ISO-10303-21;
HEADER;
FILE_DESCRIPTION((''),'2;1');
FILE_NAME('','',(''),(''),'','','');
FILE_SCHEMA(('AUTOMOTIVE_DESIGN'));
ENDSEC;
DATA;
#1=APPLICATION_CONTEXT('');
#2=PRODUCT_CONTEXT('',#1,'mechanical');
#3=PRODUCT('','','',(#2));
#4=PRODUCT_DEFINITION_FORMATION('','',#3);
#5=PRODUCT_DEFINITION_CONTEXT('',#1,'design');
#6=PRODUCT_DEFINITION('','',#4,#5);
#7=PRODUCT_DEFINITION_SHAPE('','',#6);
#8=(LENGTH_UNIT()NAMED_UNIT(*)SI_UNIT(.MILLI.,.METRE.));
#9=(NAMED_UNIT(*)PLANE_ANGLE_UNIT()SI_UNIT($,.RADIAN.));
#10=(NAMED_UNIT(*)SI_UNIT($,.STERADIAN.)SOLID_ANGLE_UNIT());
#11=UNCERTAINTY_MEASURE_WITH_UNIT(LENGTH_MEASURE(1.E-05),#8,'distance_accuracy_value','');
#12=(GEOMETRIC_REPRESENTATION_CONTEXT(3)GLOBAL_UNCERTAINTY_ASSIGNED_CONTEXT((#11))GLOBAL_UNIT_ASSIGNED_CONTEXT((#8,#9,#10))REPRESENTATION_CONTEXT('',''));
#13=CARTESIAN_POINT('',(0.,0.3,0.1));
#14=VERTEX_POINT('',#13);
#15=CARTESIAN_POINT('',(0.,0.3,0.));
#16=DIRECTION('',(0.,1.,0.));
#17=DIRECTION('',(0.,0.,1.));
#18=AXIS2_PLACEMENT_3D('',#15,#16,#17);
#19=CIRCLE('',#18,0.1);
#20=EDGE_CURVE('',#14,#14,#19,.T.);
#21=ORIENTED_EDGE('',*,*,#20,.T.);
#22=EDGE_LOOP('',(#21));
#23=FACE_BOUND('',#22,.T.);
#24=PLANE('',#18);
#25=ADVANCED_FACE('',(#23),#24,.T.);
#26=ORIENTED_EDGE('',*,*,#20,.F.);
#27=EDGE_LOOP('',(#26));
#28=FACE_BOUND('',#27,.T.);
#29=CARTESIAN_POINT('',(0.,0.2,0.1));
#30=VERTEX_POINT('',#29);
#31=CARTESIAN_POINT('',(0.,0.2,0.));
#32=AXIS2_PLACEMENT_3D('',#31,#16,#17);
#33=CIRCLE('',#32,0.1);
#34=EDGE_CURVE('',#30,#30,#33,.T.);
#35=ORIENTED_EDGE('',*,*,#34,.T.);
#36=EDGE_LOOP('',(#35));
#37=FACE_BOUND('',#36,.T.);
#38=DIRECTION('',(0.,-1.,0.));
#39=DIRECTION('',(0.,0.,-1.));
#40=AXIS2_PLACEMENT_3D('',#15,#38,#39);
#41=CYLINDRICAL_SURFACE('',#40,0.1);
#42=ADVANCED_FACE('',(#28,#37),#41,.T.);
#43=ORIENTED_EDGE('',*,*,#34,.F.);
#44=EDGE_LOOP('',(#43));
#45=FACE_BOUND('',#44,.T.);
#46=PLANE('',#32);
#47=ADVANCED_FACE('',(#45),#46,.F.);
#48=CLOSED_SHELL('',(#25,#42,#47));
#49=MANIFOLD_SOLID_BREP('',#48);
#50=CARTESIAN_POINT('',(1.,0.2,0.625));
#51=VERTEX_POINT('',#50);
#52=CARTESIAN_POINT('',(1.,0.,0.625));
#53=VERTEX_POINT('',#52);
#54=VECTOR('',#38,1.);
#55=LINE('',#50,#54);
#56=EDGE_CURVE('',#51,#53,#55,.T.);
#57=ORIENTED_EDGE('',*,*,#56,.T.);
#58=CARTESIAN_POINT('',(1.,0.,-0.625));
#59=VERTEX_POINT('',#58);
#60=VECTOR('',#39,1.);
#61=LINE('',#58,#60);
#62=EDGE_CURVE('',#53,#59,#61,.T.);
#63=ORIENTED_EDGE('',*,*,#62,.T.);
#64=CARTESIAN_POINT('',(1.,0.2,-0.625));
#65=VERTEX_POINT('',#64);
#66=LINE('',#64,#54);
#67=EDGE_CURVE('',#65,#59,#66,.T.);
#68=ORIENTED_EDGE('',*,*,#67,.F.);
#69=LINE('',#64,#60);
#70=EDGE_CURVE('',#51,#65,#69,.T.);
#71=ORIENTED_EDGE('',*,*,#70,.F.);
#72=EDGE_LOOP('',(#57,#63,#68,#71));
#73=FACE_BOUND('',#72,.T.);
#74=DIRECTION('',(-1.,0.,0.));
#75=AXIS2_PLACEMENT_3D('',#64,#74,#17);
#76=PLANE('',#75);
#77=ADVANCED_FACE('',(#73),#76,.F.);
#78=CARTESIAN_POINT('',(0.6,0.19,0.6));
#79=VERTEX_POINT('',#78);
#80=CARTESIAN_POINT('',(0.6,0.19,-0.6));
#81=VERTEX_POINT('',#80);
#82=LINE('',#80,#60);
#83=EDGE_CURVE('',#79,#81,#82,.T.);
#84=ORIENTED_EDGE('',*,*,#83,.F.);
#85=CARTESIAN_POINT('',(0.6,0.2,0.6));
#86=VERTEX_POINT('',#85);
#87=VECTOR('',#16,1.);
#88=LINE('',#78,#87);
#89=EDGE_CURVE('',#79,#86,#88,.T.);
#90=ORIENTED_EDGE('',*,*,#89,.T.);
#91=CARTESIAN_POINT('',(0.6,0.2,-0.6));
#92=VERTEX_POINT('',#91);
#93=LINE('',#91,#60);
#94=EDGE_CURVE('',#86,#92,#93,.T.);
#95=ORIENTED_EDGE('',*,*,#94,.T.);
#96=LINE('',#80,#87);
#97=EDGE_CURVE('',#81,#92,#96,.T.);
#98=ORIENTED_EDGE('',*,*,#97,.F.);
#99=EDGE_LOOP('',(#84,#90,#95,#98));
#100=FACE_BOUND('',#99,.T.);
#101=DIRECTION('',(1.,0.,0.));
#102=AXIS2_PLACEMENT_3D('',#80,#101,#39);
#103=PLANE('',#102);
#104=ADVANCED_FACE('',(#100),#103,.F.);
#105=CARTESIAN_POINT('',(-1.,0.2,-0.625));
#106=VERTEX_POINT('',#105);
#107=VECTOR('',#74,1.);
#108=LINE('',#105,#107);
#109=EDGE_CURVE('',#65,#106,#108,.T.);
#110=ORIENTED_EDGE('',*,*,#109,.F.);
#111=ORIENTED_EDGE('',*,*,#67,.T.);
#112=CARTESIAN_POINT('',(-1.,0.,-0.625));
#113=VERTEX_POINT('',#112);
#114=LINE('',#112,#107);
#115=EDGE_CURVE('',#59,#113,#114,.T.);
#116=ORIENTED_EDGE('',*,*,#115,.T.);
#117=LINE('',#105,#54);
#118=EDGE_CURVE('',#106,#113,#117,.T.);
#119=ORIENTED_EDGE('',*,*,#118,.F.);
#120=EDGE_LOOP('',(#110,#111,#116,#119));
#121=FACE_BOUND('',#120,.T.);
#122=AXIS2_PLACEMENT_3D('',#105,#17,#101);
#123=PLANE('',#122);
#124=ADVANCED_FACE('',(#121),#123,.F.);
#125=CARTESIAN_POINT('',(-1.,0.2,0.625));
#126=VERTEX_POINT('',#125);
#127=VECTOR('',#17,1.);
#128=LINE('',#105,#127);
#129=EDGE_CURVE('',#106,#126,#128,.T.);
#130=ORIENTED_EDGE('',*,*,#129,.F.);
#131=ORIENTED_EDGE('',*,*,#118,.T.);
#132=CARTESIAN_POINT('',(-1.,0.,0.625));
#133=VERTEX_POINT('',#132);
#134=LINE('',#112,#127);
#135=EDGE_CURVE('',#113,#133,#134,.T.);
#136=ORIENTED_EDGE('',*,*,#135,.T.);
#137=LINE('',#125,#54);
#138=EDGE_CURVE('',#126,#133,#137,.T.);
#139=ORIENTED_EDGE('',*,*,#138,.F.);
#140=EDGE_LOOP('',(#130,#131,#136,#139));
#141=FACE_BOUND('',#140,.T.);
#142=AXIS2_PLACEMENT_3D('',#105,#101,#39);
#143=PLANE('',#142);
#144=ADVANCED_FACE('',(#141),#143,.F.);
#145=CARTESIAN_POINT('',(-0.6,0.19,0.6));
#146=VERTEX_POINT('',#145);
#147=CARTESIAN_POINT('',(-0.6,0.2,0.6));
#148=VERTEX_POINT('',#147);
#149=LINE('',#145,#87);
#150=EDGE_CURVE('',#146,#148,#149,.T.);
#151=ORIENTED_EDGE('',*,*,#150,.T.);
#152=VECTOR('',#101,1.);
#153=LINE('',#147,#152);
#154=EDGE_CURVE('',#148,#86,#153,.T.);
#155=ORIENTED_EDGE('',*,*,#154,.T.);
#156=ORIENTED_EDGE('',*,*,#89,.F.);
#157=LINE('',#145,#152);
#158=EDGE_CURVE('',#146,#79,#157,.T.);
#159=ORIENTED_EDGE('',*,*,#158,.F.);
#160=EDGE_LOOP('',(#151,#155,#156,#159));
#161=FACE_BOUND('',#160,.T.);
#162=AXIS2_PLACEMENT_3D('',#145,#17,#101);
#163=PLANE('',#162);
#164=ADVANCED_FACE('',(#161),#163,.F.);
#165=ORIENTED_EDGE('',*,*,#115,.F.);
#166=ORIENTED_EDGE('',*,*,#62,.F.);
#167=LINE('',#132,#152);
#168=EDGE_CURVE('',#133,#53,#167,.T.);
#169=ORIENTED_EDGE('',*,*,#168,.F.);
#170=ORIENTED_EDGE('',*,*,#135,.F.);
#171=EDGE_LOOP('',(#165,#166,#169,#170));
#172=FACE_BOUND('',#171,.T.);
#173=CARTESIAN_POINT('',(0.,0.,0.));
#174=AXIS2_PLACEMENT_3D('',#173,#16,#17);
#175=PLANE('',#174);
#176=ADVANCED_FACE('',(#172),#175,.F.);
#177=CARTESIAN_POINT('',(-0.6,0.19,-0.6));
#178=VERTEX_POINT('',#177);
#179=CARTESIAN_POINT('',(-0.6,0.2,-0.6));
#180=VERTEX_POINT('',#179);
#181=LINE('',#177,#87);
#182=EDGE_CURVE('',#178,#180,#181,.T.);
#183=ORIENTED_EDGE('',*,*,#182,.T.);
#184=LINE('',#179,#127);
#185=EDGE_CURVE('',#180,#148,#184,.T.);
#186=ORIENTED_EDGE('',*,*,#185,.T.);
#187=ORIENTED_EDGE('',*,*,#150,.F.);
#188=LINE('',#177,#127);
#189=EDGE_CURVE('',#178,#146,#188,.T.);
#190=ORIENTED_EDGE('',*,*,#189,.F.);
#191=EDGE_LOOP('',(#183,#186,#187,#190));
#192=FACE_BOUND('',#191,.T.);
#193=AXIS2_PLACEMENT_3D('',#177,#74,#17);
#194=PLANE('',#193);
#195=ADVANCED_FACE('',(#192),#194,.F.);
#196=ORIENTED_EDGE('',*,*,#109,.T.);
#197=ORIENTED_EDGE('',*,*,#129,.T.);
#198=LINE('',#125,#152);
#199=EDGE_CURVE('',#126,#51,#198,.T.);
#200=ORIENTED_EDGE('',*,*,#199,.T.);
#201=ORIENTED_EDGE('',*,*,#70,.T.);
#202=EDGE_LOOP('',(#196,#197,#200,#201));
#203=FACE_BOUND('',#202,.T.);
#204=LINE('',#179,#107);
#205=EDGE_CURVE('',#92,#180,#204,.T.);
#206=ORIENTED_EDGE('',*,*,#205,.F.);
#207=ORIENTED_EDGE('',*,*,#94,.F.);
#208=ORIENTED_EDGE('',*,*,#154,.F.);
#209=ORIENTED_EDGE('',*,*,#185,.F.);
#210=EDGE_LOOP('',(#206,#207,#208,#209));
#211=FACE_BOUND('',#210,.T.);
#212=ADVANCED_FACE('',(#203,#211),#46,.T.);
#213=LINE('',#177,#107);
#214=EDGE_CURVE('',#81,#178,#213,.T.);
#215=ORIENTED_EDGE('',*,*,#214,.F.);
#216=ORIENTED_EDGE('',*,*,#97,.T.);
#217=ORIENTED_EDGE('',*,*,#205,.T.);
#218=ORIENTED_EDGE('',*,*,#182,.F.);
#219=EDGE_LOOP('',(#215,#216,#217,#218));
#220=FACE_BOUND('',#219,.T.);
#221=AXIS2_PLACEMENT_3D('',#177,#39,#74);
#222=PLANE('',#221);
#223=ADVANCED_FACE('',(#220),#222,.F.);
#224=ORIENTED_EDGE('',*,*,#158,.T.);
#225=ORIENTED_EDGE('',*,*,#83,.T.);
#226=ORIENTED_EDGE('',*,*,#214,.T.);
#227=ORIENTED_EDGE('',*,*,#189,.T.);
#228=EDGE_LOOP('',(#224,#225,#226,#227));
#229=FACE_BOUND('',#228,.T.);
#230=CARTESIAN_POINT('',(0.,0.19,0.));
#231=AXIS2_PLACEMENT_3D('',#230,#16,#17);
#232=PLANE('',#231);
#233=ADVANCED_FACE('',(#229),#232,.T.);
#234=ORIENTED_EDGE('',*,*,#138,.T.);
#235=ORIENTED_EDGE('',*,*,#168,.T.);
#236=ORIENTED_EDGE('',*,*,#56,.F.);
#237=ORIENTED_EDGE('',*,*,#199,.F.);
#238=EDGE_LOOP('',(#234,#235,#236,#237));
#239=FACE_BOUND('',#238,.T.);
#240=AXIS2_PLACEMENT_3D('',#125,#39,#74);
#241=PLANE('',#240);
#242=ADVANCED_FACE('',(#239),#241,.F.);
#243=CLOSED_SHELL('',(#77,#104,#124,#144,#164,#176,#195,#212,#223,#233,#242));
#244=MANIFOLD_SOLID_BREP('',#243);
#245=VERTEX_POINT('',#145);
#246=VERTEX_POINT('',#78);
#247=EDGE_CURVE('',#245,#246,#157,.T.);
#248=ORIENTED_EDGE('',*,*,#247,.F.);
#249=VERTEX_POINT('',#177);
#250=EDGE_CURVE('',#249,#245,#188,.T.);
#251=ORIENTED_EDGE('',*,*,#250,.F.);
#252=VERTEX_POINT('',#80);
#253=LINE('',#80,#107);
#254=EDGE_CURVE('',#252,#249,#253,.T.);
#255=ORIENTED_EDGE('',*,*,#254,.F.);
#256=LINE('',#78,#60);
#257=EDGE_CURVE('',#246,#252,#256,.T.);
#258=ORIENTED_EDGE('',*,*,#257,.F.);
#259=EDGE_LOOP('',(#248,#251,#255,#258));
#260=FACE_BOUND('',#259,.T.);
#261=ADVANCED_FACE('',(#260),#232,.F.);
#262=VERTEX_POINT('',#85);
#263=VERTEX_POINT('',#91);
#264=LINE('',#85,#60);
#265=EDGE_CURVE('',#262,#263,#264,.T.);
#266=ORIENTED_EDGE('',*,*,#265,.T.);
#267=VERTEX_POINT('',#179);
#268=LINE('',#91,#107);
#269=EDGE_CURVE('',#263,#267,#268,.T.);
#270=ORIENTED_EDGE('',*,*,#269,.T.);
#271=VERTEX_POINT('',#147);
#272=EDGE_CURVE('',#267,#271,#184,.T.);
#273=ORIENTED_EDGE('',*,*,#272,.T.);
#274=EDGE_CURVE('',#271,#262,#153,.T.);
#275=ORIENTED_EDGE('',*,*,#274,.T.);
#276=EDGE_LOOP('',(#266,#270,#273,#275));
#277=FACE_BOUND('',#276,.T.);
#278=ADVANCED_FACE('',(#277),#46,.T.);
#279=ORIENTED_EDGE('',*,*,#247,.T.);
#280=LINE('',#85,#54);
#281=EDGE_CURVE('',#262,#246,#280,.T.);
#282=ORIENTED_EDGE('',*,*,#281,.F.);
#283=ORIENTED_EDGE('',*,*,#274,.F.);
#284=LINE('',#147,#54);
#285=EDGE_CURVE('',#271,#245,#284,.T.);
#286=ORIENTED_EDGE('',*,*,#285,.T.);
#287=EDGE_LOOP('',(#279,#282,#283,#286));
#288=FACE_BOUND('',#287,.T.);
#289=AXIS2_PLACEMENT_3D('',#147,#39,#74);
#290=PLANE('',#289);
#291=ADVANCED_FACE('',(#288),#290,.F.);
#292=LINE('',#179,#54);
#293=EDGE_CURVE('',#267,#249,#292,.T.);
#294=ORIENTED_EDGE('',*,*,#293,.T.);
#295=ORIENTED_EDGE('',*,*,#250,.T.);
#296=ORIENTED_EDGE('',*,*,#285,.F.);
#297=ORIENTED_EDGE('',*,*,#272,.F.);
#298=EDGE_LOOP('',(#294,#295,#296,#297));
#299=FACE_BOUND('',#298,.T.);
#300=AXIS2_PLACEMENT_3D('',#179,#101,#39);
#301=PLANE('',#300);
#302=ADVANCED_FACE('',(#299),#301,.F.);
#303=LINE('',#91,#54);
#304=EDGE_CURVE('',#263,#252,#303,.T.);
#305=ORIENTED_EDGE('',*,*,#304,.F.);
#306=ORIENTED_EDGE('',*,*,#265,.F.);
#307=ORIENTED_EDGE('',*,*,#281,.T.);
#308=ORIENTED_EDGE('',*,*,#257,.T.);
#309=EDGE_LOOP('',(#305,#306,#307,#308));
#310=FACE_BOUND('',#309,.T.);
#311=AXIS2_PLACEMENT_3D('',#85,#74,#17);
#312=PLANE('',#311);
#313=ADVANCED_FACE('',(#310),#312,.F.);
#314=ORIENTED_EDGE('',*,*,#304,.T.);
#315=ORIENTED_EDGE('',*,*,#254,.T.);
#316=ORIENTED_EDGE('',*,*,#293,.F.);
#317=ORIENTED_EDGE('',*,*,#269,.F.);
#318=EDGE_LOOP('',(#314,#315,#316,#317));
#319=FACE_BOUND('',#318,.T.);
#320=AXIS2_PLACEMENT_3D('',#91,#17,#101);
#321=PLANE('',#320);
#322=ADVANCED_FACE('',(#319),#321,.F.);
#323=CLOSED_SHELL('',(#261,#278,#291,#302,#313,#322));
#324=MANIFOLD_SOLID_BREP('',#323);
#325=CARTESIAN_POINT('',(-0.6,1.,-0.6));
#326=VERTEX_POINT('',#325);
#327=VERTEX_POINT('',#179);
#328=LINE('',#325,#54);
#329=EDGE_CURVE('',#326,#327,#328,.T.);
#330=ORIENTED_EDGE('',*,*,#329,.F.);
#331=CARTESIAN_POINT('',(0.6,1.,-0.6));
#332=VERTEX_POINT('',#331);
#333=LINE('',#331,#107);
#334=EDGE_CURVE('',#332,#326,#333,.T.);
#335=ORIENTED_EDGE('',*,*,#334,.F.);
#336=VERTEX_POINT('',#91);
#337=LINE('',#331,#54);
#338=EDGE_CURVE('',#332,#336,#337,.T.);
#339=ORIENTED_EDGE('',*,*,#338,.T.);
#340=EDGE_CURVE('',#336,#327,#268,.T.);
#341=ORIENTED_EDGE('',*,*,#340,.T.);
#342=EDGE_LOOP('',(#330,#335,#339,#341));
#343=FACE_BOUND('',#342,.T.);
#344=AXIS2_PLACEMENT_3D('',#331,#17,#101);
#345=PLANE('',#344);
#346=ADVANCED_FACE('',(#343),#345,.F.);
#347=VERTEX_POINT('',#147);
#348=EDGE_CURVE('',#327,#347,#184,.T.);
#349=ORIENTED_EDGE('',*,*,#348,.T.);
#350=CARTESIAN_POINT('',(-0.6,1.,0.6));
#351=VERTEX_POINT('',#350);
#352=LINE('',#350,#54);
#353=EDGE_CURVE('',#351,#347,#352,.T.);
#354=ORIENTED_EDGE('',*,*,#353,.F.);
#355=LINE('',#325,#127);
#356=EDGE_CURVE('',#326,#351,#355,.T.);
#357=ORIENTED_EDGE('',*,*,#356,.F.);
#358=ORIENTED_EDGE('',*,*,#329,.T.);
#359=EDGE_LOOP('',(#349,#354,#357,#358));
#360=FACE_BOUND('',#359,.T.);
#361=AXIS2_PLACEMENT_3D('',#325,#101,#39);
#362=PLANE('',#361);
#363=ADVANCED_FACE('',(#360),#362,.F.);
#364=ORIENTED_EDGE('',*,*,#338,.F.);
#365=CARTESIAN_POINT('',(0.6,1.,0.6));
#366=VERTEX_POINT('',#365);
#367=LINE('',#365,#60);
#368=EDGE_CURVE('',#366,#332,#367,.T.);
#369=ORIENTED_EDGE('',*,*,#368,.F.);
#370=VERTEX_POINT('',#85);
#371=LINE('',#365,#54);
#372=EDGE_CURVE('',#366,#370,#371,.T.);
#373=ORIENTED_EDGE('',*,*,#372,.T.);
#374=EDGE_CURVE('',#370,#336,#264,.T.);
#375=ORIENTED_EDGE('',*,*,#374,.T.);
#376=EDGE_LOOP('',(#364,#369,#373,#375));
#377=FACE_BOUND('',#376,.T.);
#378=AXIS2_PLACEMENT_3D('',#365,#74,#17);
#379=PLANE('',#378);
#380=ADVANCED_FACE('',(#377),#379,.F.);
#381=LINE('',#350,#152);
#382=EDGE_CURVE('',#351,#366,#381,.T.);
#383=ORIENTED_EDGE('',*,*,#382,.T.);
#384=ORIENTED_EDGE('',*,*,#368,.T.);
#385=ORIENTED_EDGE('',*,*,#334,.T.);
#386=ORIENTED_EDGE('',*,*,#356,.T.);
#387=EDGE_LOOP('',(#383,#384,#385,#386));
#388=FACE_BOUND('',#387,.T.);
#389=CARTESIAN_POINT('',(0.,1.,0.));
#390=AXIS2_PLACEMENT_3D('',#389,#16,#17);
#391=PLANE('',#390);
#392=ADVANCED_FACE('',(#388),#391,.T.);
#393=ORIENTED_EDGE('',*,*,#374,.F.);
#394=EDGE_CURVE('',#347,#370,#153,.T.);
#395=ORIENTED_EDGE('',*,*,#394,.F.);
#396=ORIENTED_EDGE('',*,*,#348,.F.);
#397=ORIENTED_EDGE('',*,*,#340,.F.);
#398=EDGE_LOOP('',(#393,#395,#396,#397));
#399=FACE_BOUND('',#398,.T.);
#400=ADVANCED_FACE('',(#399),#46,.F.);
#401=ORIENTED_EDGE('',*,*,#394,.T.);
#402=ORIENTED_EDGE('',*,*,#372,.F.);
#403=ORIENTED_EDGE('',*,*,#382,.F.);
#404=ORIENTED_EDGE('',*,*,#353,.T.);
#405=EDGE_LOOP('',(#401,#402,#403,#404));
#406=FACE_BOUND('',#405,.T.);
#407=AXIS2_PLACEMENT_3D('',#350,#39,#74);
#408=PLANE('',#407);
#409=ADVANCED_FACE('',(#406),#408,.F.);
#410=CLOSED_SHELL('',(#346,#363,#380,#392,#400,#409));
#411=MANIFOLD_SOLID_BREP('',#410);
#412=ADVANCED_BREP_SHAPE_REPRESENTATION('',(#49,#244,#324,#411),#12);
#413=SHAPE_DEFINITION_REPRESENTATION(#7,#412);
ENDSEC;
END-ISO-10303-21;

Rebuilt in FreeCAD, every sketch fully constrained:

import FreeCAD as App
import Part
import Sketcher
Q = App.Units.Quantity


def add_polygon(sketch, points):
    """Adds a closed chain of lines whose ends are joined by coincident constraints."""
    first, n = sketch.GeometryCount, len(points)
    for a, b in zip(points, points[1:] + points[:1]):
        sketch.addGeometry(Part.LineSegment(App.Vector(*a, 0), App.Vector(*b, 0)), False)
    for i in range(n):
        sketch.addConstraint(Sketcher.Constraint("Coincident", first + i, 2, first + (i + 1) % n, 1))

doc = App.newDocument("Part")
body = doc.addObject("PartDesign::Body", "Body")
body.AllowCompound = True

# Sketch on XZ plane
sketch1 = body.newObject("Sketcher::SketchObject", "Sketch")
sketch1.AttachmentSupport = (doc.getObject("XZ_Plane"), [""])
sketch1.MapMode = "FlatFace"
sketch1.addGeometry(Part.Circle(App.Vector(0, 0, 0), App.Vector(0, 0, 1), 0.1), False)
sketch1.addConstraint([
    Sketcher.Constraint("Coincident", 0, 3, -1, 1),
    Sketcher.Constraint("Diameter", 0, Q("0.2 mm")),
])
pad1 = body.newObject("PartDesign::Pad", "Pad")
pad1.Profile = sketch1
pad1.Length = 0.3
pad1.Reversed = True

# Sketch on XZ plane
sketch2 = body.newObject("Sketcher::SketchObject", "Sketch001")
sketch2.AttachmentSupport = (doc.getObject("XZ_Plane"), [""])
sketch2.MapMode = "FlatFace"
add_polygon(sketch2, [(-1, -0.6), (-1, 0.6), (1, 0.6), (1, -0.6)])  # lines 0-3
sketch2.addConstraint([
    Sketcher.Constraint("Vertical", 0),
    Sketcher.Constraint("Horizontal", 1),
    Sketcher.Constraint("Vertical", 2),
    Sketcher.Constraint("Horizontal", 3),
    Sketcher.Constraint("Symmetric", 0, 2, 2, 2, -1, 1),
    Sketcher.Constraint("DistanceX", 1, 1, 1, 2, Q("2 mm")),
    Sketcher.Constraint("DistanceY", 0, 1, 0, 2, Q("1.25 mm")),
])
pad2 = body.newObject("PartDesign::Pad", "Pad001")
pad2.Profile = sketch2
pad2.Length = 0.2
pad2.Reversed = True

# Sketch on XZ plane
sketch3 = body.newObject("Sketcher::SketchObject", "Sketch002")
sketch3.AttachmentSupport = (doc.getObject("XZ_Plane"), [""])
sketch3.MapMode = "FlatFace"
sketch3.AttachmentOffset = App.Placement(App.Vector(0, 0, -0.2), App.Rotation())
add_polygon(sketch3, [(-0.6, -0.6), (-0.6, 0.6), (0.6, 0.6), (0.6, -0.6)])  # lines 0-3
sketch3.addConstraint([
    Sketcher.Constraint("Vertical", 0),
    Sketcher.Constraint("Horizontal", 1),
    Sketcher.Constraint("Vertical", 2),
    Sketcher.Constraint("Horizontal", 3),
    Sketcher.Constraint("Symmetric", 0, 2, 2, 2, -1, 1),
    Sketcher.Constraint("Equal", 3, 0),
    Sketcher.Constraint("DistanceX", 1, 1, 1, 2, Q("1.2 mm")),
])
pocket1 = body.newObject("PartDesign::Pocket", "Pocket")
pocket1.Profile = sketch3
pocket1.Length = 0.01
pocket1.Reversed = True
body2 = doc.addObject("PartDesign::Body", "Body001")

# Sketch on XZ plane
sketch4 = body2.newObject("Sketcher::SketchObject", "Sketch003")
sketch4.AttachmentSupport = (doc.getObject("XZ_Plane001"), [""])
sketch4.MapMode = "FlatFace"
sketch4.AttachmentOffset = App.Placement(App.Vector(0, 0, -0.19), App.Rotation())
add_polygon(sketch4, [(-0.6, -0.6), (-0.6, 0.6), (0.6, 0.6), (0.6, -0.6)])  # lines 0-3
sketch4.addConstraint([
    Sketcher.Constraint("Vertical", 0),
    Sketcher.Constraint("Horizontal", 1),
    Sketcher.Constraint("Vertical", 2),
    Sketcher.Constraint("Horizontal", 3),
    Sketcher.Constraint("Symmetric", 0, 2, 2, 2, -1, 1),
    Sketcher.Constraint("Equal", 3, 0),
    Sketcher.Constraint("DistanceX", 1, 1, 1, 2, Q("1.2 mm")),
])
pad3 = body2.newObject("PartDesign::Pad", "Pad002")
pad3.Profile = sketch4
pad3.Length = 0.01
pad3.Reversed = True
body3 = doc.addObject("PartDesign::Body", "Body002")

# Sketch on XZ plane
sketch5 = body3.newObject("Sketcher::SketchObject", "Sketch004")
sketch5.AttachmentSupport = (doc.getObject("XZ_Plane002"), [""])
sketch5.MapMode = "FlatFace"
sketch5.AttachmentOffset = App.Placement(App.Vector(0, 0, -0.2), App.Rotation())
add_polygon(sketch5, [(-0.6, -0.6), (-0.6, 0.6), (0.6, 0.6), (0.6, -0.6)])  # lines 0-3
sketch5.addConstraint([
    Sketcher.Constraint("Vertical", 0),
    Sketcher.Constraint("Horizontal", 1),
    Sketcher.Constraint("Vertical", 2),
    Sketcher.Constraint("Horizontal", 3),
    Sketcher.Constraint("Symmetric", 0, 2, 2, 2, -1, 1),
    Sketcher.Constraint("Equal", 3, 0),
    Sketcher.Constraint("DistanceX", 1, 1, 1, 2, Q("1.2 mm")),
])
pad4 = body3.newObject("PartDesign::Pad", "Pad003")
pad4.Profile = sketch5
pad4.Length = 0.8
pad4.Reversed = True

doc.recompute()
